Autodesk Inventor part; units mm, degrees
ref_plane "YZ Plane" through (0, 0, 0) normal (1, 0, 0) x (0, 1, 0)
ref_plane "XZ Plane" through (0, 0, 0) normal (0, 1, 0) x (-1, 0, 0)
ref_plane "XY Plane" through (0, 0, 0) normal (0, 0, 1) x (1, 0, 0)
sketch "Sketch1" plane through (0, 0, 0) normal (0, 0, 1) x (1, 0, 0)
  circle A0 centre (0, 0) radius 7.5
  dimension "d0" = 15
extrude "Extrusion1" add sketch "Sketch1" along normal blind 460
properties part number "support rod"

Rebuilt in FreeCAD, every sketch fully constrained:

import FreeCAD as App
import Part
import Sketcher

V = App.Vector

doc = App.newDocument("Part")
params = doc.addObject("Spreadsheet::Sheet", "Params")
for row, (alias, value) in enumerate([
    ("sketch1_diameter", "15 mm"),
    ("pad1_length", "460 mm"),
], start=1):
    params.set(f"A{row}", alias)
    params.set(f"B{row}", "=" + value)
    params.setAlias(f"B{row}", alias)

body = doc.addObject("PartDesign::Body", "Body")

sketch1 = doc.addObject("Sketcher::SketchObject", "Sketch")
body.addObject(sketch1)
sketch1.AttachmentSupport = (doc.XY_Plane, [""])
sketch1.MapMode = "FlatFace"
sketch1.addGeometry(Part.Circle(V(0, 0, 0), V(0, 0, 1), 8), False)
sketch1.addConstraint([
    Sketcher.Constraint("Coincident", 0, 3, -1, 1),
    Sketcher.Constraint("Diameter", 0, 15.0),
])
sketch1.setExpression("Constraints[1]", "Params.sketch1_diameter")
pad1 = doc.addObject("PartDesign::Pad", "Pad")
body.addObject(pad1)
pad1.Profile = sketch1
pad1.setExpression("Length", "Params.pad1_length")

doc.recompute()
